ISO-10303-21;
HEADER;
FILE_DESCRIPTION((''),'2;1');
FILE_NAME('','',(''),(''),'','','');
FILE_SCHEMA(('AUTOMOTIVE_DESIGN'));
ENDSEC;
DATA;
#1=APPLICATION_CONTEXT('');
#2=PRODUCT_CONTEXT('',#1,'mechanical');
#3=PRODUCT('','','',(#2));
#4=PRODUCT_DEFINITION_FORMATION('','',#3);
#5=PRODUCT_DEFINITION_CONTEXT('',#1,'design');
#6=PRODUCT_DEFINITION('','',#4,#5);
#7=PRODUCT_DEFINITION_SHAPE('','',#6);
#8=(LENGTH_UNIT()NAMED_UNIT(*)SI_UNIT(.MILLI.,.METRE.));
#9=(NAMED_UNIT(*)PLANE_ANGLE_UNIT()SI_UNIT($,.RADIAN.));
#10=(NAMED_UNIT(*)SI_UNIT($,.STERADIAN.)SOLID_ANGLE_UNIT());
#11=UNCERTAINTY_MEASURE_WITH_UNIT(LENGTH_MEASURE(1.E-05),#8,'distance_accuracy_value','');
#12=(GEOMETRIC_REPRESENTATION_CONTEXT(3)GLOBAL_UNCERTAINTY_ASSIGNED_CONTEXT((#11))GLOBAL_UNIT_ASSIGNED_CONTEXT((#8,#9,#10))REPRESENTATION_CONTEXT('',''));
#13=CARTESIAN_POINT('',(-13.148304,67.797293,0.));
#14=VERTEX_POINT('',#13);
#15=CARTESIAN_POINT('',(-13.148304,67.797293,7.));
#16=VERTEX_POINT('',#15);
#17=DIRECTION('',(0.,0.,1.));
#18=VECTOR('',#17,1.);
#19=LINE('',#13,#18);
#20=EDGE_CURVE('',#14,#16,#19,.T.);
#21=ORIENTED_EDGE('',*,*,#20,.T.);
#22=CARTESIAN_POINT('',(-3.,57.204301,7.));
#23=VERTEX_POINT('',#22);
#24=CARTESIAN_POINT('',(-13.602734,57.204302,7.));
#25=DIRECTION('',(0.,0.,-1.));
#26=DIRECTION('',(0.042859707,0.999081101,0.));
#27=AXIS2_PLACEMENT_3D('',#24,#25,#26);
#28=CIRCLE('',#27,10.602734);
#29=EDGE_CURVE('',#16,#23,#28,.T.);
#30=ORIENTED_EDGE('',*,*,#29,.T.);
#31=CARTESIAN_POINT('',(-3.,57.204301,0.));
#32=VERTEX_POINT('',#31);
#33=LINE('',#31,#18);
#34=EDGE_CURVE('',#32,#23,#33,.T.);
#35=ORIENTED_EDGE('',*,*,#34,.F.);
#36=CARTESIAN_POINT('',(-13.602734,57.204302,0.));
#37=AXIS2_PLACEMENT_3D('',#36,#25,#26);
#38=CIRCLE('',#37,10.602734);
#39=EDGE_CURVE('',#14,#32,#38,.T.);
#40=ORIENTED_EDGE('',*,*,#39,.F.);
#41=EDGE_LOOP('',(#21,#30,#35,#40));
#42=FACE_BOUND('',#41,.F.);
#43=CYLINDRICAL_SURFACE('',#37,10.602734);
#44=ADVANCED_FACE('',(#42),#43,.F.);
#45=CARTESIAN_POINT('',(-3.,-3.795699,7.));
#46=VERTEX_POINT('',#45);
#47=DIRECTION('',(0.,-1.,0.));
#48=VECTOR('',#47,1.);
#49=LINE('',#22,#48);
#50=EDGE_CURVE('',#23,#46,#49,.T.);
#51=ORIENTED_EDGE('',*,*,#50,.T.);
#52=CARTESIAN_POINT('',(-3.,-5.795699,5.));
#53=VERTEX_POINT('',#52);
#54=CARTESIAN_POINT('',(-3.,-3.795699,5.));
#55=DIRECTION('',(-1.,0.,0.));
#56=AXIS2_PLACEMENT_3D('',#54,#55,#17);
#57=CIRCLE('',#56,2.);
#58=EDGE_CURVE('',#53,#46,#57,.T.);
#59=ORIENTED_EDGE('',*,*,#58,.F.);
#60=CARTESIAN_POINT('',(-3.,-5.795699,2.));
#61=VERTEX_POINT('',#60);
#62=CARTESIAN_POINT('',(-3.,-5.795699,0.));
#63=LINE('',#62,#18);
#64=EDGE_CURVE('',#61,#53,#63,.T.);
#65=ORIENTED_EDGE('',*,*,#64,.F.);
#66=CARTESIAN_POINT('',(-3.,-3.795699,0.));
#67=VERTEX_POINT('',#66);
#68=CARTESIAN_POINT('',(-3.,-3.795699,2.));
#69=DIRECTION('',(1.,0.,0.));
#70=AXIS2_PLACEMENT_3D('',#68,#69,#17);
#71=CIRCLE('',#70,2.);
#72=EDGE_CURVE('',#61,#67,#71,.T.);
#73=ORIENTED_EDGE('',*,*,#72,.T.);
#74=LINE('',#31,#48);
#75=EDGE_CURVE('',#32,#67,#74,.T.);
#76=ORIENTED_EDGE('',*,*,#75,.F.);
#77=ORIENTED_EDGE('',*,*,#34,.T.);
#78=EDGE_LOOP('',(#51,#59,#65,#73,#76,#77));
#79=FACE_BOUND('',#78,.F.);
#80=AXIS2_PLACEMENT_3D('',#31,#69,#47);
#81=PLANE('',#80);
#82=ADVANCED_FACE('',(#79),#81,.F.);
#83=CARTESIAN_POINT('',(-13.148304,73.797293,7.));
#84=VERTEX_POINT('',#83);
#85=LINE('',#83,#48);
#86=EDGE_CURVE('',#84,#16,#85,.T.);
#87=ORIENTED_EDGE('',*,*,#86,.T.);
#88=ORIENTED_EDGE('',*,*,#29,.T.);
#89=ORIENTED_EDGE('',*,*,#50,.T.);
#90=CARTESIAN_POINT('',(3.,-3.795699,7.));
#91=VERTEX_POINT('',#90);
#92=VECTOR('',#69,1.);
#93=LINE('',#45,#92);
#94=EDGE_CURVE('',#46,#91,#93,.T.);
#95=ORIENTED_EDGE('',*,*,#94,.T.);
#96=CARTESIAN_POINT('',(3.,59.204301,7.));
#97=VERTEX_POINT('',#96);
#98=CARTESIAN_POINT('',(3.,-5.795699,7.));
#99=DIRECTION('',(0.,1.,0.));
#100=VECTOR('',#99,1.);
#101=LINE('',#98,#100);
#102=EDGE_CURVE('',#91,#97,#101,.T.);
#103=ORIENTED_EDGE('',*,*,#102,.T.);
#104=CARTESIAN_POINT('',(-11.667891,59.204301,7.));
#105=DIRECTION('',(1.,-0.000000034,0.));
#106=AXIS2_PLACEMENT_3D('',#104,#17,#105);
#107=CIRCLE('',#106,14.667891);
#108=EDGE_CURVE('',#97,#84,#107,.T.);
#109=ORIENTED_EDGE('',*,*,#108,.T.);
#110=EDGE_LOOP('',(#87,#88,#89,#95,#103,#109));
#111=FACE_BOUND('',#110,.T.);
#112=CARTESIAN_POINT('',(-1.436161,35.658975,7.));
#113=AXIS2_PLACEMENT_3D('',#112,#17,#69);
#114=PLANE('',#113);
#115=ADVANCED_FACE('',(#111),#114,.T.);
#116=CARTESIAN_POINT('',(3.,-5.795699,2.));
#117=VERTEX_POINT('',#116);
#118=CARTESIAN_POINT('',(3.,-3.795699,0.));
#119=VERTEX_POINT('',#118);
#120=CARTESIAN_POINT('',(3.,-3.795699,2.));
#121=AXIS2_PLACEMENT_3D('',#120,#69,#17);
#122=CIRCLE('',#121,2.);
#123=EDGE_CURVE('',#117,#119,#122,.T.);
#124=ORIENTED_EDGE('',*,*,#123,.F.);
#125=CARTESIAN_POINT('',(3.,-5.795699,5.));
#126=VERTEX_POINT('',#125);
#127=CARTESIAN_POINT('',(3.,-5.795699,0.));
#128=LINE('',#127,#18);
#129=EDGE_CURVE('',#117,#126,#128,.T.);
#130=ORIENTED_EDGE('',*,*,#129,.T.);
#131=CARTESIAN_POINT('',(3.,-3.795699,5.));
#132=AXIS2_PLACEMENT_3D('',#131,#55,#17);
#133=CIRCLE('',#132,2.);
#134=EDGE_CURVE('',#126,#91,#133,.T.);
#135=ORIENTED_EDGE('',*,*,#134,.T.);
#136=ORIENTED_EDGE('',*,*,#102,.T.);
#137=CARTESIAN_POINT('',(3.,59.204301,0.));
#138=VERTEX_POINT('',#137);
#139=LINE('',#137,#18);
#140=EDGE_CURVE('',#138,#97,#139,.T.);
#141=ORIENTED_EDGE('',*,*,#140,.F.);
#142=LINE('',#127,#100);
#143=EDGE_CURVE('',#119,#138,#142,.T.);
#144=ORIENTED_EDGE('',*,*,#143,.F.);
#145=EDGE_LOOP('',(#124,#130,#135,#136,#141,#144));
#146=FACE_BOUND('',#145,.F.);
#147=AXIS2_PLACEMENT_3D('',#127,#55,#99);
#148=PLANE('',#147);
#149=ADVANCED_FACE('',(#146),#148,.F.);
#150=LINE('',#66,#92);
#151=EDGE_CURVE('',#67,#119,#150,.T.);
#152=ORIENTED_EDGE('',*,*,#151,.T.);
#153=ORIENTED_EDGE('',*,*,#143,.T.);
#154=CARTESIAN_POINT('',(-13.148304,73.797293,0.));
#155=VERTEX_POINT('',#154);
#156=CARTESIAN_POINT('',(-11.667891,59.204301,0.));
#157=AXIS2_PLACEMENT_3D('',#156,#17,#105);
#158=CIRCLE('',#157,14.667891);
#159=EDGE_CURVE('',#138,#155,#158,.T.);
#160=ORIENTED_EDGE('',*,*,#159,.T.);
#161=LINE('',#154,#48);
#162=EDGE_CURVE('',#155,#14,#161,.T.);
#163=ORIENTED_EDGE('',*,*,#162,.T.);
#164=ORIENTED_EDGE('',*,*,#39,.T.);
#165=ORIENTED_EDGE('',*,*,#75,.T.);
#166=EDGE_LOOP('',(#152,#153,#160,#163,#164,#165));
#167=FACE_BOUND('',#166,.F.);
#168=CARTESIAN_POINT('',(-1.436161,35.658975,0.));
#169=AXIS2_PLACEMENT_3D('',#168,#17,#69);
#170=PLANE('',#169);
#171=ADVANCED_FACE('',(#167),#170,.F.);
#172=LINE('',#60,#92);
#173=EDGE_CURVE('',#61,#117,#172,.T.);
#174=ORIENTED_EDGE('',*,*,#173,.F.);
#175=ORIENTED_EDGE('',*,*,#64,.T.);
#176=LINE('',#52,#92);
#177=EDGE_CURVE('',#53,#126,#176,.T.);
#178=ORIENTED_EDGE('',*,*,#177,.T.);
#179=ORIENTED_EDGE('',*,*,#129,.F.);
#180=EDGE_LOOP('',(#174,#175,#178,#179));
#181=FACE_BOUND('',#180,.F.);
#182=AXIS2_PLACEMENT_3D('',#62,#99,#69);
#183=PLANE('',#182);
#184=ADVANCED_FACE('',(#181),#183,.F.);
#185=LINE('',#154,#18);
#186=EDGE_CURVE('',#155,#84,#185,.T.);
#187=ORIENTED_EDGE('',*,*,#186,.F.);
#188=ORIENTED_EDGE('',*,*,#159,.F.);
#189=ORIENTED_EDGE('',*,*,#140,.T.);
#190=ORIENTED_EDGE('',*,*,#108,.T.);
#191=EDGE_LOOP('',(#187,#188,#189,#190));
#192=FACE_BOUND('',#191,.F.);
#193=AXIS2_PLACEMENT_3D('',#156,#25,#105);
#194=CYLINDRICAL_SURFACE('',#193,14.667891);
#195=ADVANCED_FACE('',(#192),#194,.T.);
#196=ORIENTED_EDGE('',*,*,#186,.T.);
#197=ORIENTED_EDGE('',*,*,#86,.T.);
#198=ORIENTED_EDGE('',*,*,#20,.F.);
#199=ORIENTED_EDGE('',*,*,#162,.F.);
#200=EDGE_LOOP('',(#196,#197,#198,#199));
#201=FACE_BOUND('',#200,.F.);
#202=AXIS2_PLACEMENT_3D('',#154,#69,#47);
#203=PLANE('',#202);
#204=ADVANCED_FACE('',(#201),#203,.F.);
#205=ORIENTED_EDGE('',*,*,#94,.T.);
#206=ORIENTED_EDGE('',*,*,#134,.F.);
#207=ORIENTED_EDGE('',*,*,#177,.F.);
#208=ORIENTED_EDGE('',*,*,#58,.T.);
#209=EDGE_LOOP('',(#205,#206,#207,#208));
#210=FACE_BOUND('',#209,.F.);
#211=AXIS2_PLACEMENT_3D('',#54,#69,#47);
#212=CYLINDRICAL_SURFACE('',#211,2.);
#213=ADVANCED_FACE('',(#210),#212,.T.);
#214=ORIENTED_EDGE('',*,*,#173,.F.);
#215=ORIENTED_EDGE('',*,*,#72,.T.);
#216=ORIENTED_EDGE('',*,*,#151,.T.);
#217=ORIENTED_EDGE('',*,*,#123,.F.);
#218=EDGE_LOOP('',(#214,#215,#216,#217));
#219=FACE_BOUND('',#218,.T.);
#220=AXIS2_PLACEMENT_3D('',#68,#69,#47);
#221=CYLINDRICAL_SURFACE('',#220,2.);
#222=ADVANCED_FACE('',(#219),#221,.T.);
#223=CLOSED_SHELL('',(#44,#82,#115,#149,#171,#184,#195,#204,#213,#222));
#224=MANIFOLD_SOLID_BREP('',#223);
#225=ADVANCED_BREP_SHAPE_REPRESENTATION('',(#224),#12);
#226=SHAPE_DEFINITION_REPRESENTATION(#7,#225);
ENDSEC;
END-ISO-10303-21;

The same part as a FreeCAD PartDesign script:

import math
import FreeCAD as App
import Part
import Sketcher
from FreeCAD import Vector


def edges_at(feature, points):
    """Names of the edges that pass closest to the given points."""
    edges = feature.Shape.Edges
    near = lambda p: min(range(len(edges)), key=lambda i: edges[i].distToShape(Part.Vertex(*p))[0])
    return sorted({f"Edge{near(p) + 1}" for p in points})

doc = App.newDocument("Part")
params = doc.addObject("Spreadsheet::Sheet", "Params")
for row, (alias, value) in enumerate([
    ("sketch1_width", "6 mm"),
    ("sketch1_height", "65 mm"),
    ("sketch1_height2", "63 mm"),
    ("pad1_length", "7 mm"),
    ("fillet_radius", "2 mm"),
], start=1):
    params.set(f"A{row}", alias)
    params.set(f"B{row}", "=" + value)
    params.setAlias(f"B{row}", alias)

body = doc.addObject("PartDesign::Body", "Body")

sketch1 = body.newObject("Sketcher::SketchObject", "Sketch")
sketch1.AttachmentSupport = (doc.getObject("XY_Plane"), [""])
sketch1.MapMode = "FlatFace"
sketch1.addGeometry([
    Part.LineSegment(Vector(-3, -6, 0), Vector(3, -6, 0)),
    Part.LineSegment(Vector(3, -6, 0), Vector(3, 59, 0)),
    Part.ArcOfCircle(Part.Circle(Vector(-12, 59, 0), Vector(0, 0, 1), 15), math.radians(0), math.radians(96)),
    Part.LineSegment(Vector(-13, 74, 0), Vector(-13, 68, 0)),
    Part.ArcOfCircle(Part.Circle(Vector(-14, 57, 0), Vector(0, 0, 1), 11), math.radians(0), math.radians(88)),
    Part.LineSegment(Vector(-3, 57, 0), Vector(-3, -6, 0)),
], False)
sketch1.addConstraint([
    Sketcher.Constraint("Coincident", 0, 2, 1, 1),
    Sketcher.Constraint("Tangent", 1, 2, 2, 1),
    Sketcher.Constraint("Coincident", 2, 2, 3, 1),
    Sketcher.Constraint("Coincident", 3, 2, 4, 2),
    Sketcher.Constraint("Tangent", 4, 1, 5, 1),
    Sketcher.Constraint("Coincident", 5, 2, 0, 1),
    Sketcher.Constraint("Horizontal", 0),
    Sketcher.Constraint("Vertical", 1),
    Sketcher.Constraint("Vertical", 3),
    Sketcher.Constraint("Vertical", 5),
    Sketcher.Constraint("Equal", 0, 3),
    Sketcher.Constraint("DistanceX", 0, 1, 0, 2, 6.0),
    Sketcher.Constraint("DistanceY", 1, 1, 1, 2, 65.0),
    Sketcher.Constraint("DistanceY", 5, 2, 5, 1, 63.0),
    Sketcher.Constraint("DistanceX", -1, 1, 0, 2, 3.0),
    Sketcher.Constraint("Radius", 2, 14.667891),
    Sketcher.Constraint("Radius", 4, 10.602734),
    Sketcher.Constraint("DistanceY", -1, 1, 2, 3, 59.204301),
])
sketch1.setExpression("Constraints[11]", "Params.sketch1_width")
sketch1.setExpression("Constraints[12]", "Params.sketch1_height")
sketch1.setExpression("Constraints[13]", "Params.sketch1_height2")
pad1 = body.newObject("PartDesign::Pad", "Pad")
pad1.Profile = sketch1
pad1.setExpression("Length", "Params.pad1_length")
doc.recompute()

fillet = body.newObject("PartDesign::Fillet", "Fillet")
fillet.Base = (pad1, edges_at(pad1, [(0, -5.796, 7), (0, -5.796, 0)]))
fillet.setExpression("Radius", "Params.fillet_radius")

doc.recompute()
